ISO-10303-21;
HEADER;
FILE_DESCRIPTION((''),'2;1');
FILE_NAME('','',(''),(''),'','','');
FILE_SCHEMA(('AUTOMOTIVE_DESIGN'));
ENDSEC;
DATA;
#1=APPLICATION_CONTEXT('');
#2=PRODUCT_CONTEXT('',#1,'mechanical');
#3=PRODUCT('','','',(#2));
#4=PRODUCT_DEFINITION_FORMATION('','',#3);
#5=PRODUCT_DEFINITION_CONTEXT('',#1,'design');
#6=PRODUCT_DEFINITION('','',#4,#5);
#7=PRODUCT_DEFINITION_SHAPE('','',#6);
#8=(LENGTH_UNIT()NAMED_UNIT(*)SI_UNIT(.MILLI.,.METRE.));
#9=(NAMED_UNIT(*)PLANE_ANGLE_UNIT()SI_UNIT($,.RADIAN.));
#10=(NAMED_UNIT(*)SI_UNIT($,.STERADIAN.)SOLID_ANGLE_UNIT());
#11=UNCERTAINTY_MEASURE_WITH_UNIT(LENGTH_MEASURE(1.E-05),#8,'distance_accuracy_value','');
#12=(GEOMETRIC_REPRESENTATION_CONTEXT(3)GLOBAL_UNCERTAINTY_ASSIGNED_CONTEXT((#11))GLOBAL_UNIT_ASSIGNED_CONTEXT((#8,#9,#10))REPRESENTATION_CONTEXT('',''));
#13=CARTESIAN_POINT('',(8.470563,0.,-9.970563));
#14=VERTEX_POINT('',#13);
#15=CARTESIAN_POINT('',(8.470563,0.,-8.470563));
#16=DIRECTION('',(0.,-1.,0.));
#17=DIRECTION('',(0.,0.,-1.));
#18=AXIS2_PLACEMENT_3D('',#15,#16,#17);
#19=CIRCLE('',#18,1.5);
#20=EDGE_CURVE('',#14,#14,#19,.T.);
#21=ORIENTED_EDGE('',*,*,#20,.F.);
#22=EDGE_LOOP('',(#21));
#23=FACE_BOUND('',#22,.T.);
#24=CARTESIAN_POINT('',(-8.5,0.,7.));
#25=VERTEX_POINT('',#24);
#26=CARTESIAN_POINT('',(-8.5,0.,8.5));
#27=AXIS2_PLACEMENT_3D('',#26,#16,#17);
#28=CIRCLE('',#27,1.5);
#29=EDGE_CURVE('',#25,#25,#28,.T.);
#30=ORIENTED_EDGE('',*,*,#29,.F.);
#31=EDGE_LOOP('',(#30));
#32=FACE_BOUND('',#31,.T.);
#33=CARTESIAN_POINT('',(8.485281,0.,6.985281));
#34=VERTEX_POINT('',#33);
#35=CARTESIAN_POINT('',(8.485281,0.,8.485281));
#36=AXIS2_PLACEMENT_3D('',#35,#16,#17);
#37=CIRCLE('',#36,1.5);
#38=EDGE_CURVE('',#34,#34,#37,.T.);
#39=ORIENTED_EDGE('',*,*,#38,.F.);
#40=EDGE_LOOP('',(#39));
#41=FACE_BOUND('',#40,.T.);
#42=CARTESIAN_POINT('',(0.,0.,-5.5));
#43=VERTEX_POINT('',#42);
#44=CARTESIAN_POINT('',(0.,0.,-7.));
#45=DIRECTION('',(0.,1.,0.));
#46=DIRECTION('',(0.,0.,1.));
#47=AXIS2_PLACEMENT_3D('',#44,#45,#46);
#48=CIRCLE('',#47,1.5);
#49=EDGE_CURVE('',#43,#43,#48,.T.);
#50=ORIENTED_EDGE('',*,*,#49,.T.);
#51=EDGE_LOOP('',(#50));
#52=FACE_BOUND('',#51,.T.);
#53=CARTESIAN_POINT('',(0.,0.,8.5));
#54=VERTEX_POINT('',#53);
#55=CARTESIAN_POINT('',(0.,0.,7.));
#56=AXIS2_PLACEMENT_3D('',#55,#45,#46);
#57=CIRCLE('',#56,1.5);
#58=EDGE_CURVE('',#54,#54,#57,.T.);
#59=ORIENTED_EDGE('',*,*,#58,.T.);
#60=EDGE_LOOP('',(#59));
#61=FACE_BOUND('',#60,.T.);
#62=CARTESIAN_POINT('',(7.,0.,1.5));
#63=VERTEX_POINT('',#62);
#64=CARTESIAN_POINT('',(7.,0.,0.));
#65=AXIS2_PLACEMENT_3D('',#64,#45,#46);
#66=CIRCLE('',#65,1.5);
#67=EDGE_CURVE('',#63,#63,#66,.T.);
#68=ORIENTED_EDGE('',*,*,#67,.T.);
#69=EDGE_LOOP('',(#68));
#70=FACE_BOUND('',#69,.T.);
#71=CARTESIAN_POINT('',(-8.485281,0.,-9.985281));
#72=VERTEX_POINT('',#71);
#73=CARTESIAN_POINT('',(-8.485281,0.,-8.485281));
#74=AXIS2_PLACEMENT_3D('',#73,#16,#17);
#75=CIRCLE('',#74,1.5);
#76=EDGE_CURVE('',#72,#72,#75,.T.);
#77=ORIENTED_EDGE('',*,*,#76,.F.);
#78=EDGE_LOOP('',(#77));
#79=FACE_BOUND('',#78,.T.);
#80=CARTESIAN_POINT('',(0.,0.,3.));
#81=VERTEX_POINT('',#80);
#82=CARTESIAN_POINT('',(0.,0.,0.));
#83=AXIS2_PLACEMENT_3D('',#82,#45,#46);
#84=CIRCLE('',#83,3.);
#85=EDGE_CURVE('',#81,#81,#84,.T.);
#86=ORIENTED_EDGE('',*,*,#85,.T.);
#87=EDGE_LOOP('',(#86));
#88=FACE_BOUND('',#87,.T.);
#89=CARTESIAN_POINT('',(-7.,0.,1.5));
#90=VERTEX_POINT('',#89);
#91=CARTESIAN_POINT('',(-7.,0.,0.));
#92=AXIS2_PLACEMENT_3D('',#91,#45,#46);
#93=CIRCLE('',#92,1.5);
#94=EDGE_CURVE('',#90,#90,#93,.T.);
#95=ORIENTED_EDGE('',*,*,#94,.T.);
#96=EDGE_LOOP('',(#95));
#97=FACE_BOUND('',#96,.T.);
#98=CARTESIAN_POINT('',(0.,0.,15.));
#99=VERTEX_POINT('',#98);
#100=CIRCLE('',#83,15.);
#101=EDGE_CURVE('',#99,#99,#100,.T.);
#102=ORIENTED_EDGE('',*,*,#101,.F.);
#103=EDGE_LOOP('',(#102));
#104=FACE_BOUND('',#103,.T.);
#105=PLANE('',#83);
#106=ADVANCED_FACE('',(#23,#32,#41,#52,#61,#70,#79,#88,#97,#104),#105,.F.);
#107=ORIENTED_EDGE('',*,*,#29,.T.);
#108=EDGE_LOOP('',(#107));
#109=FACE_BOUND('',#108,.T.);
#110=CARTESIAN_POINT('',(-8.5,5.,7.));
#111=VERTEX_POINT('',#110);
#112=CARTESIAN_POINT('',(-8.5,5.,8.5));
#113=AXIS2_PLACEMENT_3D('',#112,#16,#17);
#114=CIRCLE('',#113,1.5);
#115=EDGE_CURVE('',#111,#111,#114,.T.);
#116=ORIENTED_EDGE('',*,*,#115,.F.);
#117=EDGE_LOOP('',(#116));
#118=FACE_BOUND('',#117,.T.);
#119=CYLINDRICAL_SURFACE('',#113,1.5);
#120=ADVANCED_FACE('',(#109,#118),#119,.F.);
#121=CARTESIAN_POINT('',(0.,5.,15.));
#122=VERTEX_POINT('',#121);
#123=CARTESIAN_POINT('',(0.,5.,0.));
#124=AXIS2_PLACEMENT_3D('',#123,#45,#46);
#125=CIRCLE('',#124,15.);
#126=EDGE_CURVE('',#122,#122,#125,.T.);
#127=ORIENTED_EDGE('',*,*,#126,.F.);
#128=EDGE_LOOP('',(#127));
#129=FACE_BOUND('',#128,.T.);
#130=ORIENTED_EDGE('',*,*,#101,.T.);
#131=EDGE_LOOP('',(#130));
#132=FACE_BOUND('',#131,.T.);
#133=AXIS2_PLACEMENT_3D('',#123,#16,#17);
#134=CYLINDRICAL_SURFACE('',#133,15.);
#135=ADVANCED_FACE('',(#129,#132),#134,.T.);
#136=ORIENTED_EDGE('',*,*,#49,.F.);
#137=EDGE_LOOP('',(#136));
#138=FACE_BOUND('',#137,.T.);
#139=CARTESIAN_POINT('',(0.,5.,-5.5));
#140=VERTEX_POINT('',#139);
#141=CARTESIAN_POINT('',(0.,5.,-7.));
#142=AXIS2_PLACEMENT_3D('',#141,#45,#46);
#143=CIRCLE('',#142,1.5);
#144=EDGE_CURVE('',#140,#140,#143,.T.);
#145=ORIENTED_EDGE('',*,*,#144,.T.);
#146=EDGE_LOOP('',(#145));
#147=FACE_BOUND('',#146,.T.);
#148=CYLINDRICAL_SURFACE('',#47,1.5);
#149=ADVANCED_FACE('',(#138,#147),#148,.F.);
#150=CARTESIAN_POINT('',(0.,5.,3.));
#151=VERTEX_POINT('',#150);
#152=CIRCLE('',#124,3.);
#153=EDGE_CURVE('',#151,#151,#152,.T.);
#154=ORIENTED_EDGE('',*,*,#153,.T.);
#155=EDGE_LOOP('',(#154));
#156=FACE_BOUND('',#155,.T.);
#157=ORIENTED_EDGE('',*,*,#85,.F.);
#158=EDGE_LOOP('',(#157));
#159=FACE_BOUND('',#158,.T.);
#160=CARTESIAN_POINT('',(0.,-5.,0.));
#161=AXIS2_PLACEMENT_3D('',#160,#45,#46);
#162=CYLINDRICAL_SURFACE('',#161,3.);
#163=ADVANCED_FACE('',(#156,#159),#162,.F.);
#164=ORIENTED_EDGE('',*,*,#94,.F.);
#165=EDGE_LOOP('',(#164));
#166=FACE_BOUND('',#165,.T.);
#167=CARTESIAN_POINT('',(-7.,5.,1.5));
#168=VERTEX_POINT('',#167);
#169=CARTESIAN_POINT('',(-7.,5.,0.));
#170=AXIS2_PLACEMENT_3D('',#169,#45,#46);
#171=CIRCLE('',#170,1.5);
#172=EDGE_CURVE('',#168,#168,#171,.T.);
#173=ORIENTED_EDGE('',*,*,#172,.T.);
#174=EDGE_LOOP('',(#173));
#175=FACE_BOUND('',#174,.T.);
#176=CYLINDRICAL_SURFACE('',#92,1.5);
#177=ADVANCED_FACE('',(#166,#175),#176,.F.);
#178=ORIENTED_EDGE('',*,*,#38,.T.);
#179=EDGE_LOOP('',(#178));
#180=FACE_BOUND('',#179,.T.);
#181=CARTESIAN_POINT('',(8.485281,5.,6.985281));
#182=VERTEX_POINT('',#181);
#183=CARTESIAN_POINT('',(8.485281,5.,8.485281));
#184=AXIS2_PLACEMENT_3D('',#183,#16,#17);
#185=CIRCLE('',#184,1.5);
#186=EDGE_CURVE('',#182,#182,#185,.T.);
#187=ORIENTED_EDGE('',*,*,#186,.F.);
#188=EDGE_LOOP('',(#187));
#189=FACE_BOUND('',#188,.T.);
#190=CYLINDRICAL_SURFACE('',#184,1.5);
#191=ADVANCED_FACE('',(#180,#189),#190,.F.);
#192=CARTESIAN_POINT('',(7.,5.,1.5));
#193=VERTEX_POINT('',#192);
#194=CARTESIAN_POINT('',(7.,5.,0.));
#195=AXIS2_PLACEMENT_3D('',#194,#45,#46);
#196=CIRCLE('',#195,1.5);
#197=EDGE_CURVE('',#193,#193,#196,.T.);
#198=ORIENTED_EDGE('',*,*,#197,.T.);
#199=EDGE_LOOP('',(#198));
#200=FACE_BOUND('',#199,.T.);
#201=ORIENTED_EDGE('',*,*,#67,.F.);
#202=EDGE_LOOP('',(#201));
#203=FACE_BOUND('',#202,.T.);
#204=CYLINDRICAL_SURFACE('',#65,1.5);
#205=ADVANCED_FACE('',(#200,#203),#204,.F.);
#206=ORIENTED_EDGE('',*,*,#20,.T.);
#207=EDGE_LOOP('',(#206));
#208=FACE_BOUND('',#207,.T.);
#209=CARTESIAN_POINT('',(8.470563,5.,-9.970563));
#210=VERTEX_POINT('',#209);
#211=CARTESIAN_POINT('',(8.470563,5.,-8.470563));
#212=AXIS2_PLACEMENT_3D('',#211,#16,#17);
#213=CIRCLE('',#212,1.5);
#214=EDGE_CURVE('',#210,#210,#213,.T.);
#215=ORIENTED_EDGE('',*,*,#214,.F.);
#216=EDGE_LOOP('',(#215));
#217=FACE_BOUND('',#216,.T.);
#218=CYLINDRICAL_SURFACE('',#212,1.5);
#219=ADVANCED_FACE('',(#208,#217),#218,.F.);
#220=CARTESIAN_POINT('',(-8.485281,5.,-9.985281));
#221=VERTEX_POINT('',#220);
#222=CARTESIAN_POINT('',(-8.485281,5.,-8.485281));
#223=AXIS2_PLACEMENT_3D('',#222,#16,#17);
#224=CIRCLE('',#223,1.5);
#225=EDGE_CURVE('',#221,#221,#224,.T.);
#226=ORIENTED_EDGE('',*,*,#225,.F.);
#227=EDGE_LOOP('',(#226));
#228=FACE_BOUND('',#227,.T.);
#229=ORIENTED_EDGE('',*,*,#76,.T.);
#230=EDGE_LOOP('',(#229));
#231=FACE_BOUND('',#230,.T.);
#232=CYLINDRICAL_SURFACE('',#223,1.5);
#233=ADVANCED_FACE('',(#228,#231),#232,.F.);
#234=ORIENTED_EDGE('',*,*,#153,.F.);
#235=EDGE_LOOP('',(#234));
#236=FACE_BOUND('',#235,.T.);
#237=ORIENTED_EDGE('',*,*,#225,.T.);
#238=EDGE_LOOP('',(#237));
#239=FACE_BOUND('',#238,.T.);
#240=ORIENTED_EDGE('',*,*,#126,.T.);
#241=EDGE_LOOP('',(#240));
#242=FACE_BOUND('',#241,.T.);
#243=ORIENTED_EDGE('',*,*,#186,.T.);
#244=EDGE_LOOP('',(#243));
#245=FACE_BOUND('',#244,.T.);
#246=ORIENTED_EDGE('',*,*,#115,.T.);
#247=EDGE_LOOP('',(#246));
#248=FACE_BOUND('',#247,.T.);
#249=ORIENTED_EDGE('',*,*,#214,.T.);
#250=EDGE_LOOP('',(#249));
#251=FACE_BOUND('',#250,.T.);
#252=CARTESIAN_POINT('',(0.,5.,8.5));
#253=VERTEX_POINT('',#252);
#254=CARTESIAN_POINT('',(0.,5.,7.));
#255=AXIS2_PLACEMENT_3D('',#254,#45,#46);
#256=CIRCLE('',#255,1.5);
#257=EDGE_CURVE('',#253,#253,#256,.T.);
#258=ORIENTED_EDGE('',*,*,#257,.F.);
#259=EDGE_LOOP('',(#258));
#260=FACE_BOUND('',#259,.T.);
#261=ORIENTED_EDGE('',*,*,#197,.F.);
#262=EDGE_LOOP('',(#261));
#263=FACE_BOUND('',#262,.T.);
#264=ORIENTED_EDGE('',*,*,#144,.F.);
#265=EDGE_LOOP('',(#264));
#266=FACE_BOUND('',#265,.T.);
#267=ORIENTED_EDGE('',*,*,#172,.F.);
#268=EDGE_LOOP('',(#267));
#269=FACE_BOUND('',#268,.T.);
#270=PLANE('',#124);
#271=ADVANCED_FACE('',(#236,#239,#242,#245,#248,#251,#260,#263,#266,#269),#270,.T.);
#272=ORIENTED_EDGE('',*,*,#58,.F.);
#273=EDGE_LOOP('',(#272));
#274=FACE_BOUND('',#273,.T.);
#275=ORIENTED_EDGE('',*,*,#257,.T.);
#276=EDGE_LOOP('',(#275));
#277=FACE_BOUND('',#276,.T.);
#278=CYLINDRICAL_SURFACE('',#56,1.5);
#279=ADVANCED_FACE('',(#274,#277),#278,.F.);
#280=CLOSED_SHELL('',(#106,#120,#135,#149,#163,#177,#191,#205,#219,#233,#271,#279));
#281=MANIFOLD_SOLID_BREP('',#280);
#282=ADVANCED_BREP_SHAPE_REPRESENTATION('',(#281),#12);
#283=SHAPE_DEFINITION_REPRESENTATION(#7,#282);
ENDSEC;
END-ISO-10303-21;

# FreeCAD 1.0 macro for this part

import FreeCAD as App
import Part
import Sketcher

V = App.Vector

doc = App.newDocument("Part")
body = doc.addObject("PartDesign::Body", "Body")

sketch1 = body.newObject("Sketcher::SketchObject", "Sketch")
sketch1.AttachmentSupport = (doc.getObject("XZ_Plane"), [""])
sketch1.MapMode = "FlatFace"
sketch1.addGeometry(Part.Circle(V(0, 0, 0), V(0, 0, 1), 15), False)
sketch1.addConstraint([
    Sketcher.Constraint("Coincident", 0, 3, -1, 1),
    Sketcher.Constraint("Diameter", 0, 30.0),
])
pad1 = body.newObject("PartDesign::Pad", "Pad")
pad1.Profile = sketch1
pad1.Length = 5
pad1.Reversed = True

sketch2 = body.newObject("Sketcher::SketchObject", "Sketch001")
sketch2.AttachmentSupport = (doc.getObject("XZ_Plane"), [""])
sketch2.MapMode = "FlatFace"
sketch2.addGeometry([
    Part.Circle(V(-8.5, 8.5, 0), V(0, 0, 1), 1.5),
    Part.Circle(V(8.485281, 8.485281, 0), V(0, 0, 1), 1.5),
    Part.Circle(V(-8.485281, -8.485281, 0), V(0, 0, 1), 1.5),
    Part.Circle(V(8.470563, -8.470563, 0), V(0, 0, 1), 1.5),
], False)
sketch2.addConstraint([
    Sketcher.Constraint("Equal", 0, 1),
    Sketcher.Constraint("Equal", 1, 2),
    Sketcher.Constraint("Equal", 2, 3),
    Sketcher.Constraint("Symmetric", 1, 3, 2, 3, -1, 1),
    Sketcher.Constraint("Diameter", 0, 3.0),
    Sketcher.Constraint("DistanceX", 0, 3, -1, 1, 8.5),
    Sketcher.Constraint("DistanceY", -1, 1, 0, 3, 8.5),
    Sketcher.Constraint("DistanceX", -1, 1, 1, 3, 8.485281),
    Sketcher.Constraint("DistanceY", -1, 1, 1, 3, 8.485281),
    Sketcher.Constraint("DistanceX", 3, 3, 1, 3, 0.014719),
    Sketcher.Constraint("DistanceY", 2, 3, 3, 3, 0.014719),
])
pocket1 = body.newObject("PartDesign::Pocket", "Pocket")
pocket1.Profile = sketch2
pocket1.Length = 5

sketch3 = body.newObject("Sketcher::SketchObject", "Sketch002")
sketch3.AttachmentSupport = (doc.getObject("XZ_Plane"), [""])
sketch3.MapMode = "FlatFace"
sketch3.AttachmentOffset = App.Placement(V(0, 0, -5), App.Rotation())
sketch3.addGeometry([
    Part.Circle(V(7, 0, 0), V(0, 0, 1), 1.5),
    Part.Circle(V(0, 7, 0), V(0, 0, 1), 1.5),
    Part.Circle(V(-7, 0, 0), V(0, 0, 1), 1.5),
    Part.Circle(V(0, -7, 0), V(0, 0, 1), 1.5),
], False)
sketch3.addConstraint([
    Sketcher.Constraint("Equal", 0, 1),
    Sketcher.Constraint("Equal", 1, 2),
    Sketcher.Constraint("Equal", 2, 3),
    Sketcher.Constraint("Symmetric", 0, 3, 2, 3, -1, 1),
    Sketcher.Constraint("Symmetric", 1, 3, 3, 3, -1, 1),
    Sketcher.Constraint("PointOnObject", 0, 3, -1),
    Sketcher.Constraint("PointOnObject", 1, 3, -2),
    Sketcher.Constraint("Diameter", 0, 3.0),
    Sketcher.Constraint("DistanceX", -1, 1, 0, 3, 7.0),
    Sketcher.Constraint("DistanceY", -1, 1, 1, 3, 7.0),
])
pocket2 = body.newObject("PartDesign::Pocket", "Pocket001")
pocket2.Profile = sketch3
pocket2.Length = 5
pocket2.Reversed = True

sketch4 = body.newObject("Sketcher::SketchObject", "Sketch003")
sketch4.AttachmentSupport = (doc.getObject("XZ_Plane"), [""])
sketch4.MapMode = "FlatFace"
sketch4.AttachmentOffset = App.Placement(V(0, 0, -5), App.Rotation())
sketch4.addGeometry(Part.Circle(V(0, 0, 0), V(0, 0, 1), 3), False)
sketch4.addConstraint([
    Sketcher.Constraint("Coincident", 0, 3, -1, 1),
    Sketcher.Constraint("Diameter", 0, 6.0),
])
pocket3 = body.newObject("PartDesign::Pocket", "Pocket002")
pocket3.Profile = sketch4
pocket3.Length = 10
pocket3.Reversed = True

doc.recompute()
